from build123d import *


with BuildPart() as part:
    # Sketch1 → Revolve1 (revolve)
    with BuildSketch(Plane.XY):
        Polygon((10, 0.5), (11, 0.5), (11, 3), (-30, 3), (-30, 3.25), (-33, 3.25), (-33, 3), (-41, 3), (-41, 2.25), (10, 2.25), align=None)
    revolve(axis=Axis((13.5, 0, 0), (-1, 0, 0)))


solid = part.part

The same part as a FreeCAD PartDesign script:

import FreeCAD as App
import Part
import Sketcher
Q = App.Units.Quantity


def add_polygon(sketch, points):
    """Adds a closed chain of lines whose ends are joined by coincident constraints."""
    first, n = sketch.GeometryCount, len(points)
    for a, b in zip(points, points[1:] + points[:1]):
        sketch.addGeometry(Part.LineSegment(App.Vector(*a, 0), App.Vector(*b, 0)), False)
    for i in range(n):
        sketch.addConstraint(Sketcher.Constraint("Coincident", first + i, 2, first + (i + 1) % n, 1))

doc = App.newDocument("Part")
params = doc.addObject("Spreadsheet::Sheet", "Params")
for row, (alias, value) in enumerate([
    ("sketch1_width", "1 mm"),
    ("sketch1_width2", "41 mm"),
    ("sketch1_width3", "3 mm"),
    ("sketch1_width4", "8 mm"),
    ("sketch1_height", "2.5 mm"),
    ("revolution_angle", "360 deg"),
], start=1):
    params.set(f"A{row}", alias)
    params.set(f"B{row}", "=" + value)
    params.setAlias(f"B{row}", alias)

body = doc.addObject("PartDesign::Body", "Body")

sketch1 = body.newObject("Sketcher::SketchObject", "Sketch")
sketch1.AttachmentSupport = (doc.getObject("XY_Plane"), [""])
sketch1.MapMode = "FlatFace"
add_polygon(sketch1, [(10, 0.5), (11, 0.5), (11, 3), (-30, 3), (-30, 3.25), (-33, 3.25), (-33, 3), (-41, 3), (-41, 2.25), (10, 2.25)])
sketch1.addConstraint([
    Sketcher.Constraint("Horizontal", 0),
    Sketcher.Constraint("Vertical", 1),
    Sketcher.Constraint("Horizontal", 2),
    Sketcher.Constraint("Vertical", 3),
    Sketcher.Constraint("Horizontal", 4),
    Sketcher.Constraint("Vertical", 5),
    Sketcher.Constraint("Horizontal", 6),
    Sketcher.Constraint("Vertical", 7),
    Sketcher.Constraint("Horizontal", 8),
    Sketcher.Constraint("Vertical", 9),
    Sketcher.Constraint("Horizontal", 2, 2, 5, 2),
    Sketcher.Constraint("DistanceX", 0, 1, 0, 2, Q("1 mm")),
    Sketcher.Constraint("DistanceX", 2, 2, 2, 1, Q("41 mm")),
    Sketcher.Constraint("DistanceX", 4, 2, 4, 1, Q("3 mm")),
    Sketcher.Constraint("DistanceX", 6, 2, 6, 1, Q("8 mm")),
    Sketcher.Constraint("DistanceY", 1, 1, 1, 2, Q("2.5 mm")),
    Sketcher.Constraint("DistanceX", -1, 1, 0, 2, Q("11 mm")),
    Sketcher.Constraint("DistanceY", -1, 1, 1, 2, Q("3 mm")),
    Sketcher.Constraint("DistanceY", 7, 2, 4, 2, Q("1 mm")),
    Sketcher.Constraint("DistanceY", 3, 1, 3, 2, Q("0.25 mm")),
])
sketch1.setExpression("Constraints[21]", "Params.sketch1_width")
sketch1.setExpression("Constraints[22]", "Params.sketch1_width2")
sketch1.setExpression("Constraints[23]", "Params.sketch1_width3")
sketch1.setExpression("Constraints[24]", "Params.sketch1_width4")
sketch1.setExpression("Constraints[25]", "Params.sketch1_height")
revolution = body.newObject("PartDesign::Revolution", "Revolution")
revolution.Profile = sketch1
revolution.ReferenceAxis = (sketch1, ["H_Axis"])
revolution.setExpression("Angle", "Params.revolution_angle")

doc.recompute()
